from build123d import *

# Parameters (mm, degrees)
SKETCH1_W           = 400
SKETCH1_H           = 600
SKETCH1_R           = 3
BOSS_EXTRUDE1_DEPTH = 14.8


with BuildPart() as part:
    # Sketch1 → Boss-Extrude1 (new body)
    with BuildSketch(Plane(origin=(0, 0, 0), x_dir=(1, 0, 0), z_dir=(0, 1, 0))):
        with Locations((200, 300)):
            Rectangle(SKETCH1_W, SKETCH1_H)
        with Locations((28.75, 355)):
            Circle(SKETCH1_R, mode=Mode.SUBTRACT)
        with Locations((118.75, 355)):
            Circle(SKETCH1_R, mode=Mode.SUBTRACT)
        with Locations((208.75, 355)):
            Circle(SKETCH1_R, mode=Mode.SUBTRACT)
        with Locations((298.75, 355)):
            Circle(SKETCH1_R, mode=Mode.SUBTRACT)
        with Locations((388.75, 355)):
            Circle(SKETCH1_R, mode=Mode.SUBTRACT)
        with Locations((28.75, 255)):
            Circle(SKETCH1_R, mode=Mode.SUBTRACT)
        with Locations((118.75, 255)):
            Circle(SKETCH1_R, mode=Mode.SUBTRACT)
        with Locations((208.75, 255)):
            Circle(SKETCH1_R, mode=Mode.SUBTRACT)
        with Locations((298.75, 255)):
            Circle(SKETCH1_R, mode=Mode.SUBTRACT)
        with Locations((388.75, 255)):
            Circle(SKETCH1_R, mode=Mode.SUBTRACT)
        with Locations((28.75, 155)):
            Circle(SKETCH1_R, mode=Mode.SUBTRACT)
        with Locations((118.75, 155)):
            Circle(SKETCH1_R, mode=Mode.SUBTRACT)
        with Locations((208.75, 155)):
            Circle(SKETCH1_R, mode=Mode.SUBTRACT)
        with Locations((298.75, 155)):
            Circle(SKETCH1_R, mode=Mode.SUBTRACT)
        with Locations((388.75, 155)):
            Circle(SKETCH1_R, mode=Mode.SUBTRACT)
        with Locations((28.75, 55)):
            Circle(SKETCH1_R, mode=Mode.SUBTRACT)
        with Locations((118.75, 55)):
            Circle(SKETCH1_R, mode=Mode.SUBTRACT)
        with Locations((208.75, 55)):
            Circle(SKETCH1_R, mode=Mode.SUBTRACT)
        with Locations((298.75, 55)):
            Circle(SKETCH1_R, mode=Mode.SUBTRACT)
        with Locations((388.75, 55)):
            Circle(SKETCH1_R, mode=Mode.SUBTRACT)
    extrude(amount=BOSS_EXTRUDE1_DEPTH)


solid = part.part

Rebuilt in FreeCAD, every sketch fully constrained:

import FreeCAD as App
import Part
import Sketcher
from FreeCAD import Vector

doc = App.newDocument("Part")
body = doc.addObject("PartDesign::Body", "Body")

sketch1 = body.newObject("Sketcher::SketchObject", "Sketch")
sketch1.AttachmentSupport = (doc.getObject("XZ_Plane"), [""])
sketch1.MapMode = "FlatFace"
sketch1.addGeometry([
    Part.LineSegment(Vector(0, -600, 0), Vector(0, 0, 0)),
    Part.LineSegment(Vector(0, 0, 0), Vector(400, 0, 0)),
    Part.LineSegment(Vector(400, 0, 0), Vector(400, -600, 0)),
    Part.LineSegment(Vector(400, -600, 0), Vector(0, -600, 0)),
    Part.Circle(Vector(28.75, -55, 0), Vector(0, 0, 1), 3),
    Part.Circle(Vector(118.75, -55, 0), Vector(0, 0, 1), 3),
    Part.Circle(Vector(28.75, -155, 0), Vector(0, 0, 1), 3),
    Part.Circle(Vector(118.75, -155, 0), Vector(0, 0, 1), 3),
    Part.Circle(Vector(208.75, -55, 0), Vector(0, 0, 1), 3),
    Part.Circle(Vector(298.75, -55, 0), Vector(0, 0, 1), 3),
    Part.Circle(Vector(388.75, -55, 0), Vector(0, 0, 1), 3),
    Part.Circle(Vector(208.75, -155, 0), Vector(0, 0, 1), 3),
    Part.Circle(Vector(298.75, -155, 0), Vector(0, 0, 1), 3),
    Part.Circle(Vector(388.75, -155, 0), Vector(0, 0, 1), 3),
    Part.Circle(Vector(28.75, -255, 0), Vector(0, 0, 1), 3),
    Part.Circle(Vector(118.75, -255, 0), Vector(0, 0, 1), 3),
    Part.Circle(Vector(28.75, -355, 0), Vector(0, 0, 1), 3),
    Part.Circle(Vector(118.75, -355, 0), Vector(0, 0, 1), 3),
    Part.Circle(Vector(208.75, -255, 0), Vector(0, 0, 1), 3),
    Part.Circle(Vector(298.75, -255, 0), Vector(0, 0, 1), 3),
    Part.Circle(Vector(388.75, -255, 0), Vector(0, 0, 1), 3),
    Part.Circle(Vector(208.75, -355, 0), Vector(0, 0, 1), 3),
    Part.Circle(Vector(298.75, -355, 0), Vector(0, 0, 1), 3),
    Part.Circle(Vector(388.75, -355, 0), Vector(0, 0, 1), 3),
], False)
sketch1.addConstraint([
    Sketcher.Constraint("Coincident", 0, 2, 1, 1),
    Sketcher.Constraint("Coincident", 1, 2, 2, 1),
    Sketcher.Constraint("Coincident", 2, 2, 3, 1),
    Sketcher.Constraint("Coincident", 3, 2, 0, 1),
    Sketcher.Constraint("Vertical", 0),
    Sketcher.Constraint("Horizontal", 1),
    Sketcher.Constraint("Vertical", 2),
    Sketcher.Constraint("Horizontal", 3),
    Sketcher.Constraint("Coincident", 0, 2, -1, 1),
    Sketcher.Constraint("Equal", 4, 5),
    Sketcher.Constraint("Equal", 5, 6),
    Sketcher.Constraint("Equal", 6, 7),
    Sketcher.Constraint("Equal", 7, 8),
    Sketcher.Constraint("Equal", 8, 9),
    Sketcher.Constraint("Equal", 9, 10),
    Sketcher.Constraint("Equal", 10, 11),
    Sketcher.Constraint("Equal", 11, 12),
    Sketcher.Constraint("Equal", 12, 13),
    Sketcher.Constraint("Equal", 13, 14),
    Sketcher.Constraint("Equal", 14, 15),
    Sketcher.Constraint("Equal", 15, 16),
    Sketcher.Constraint("Equal", 16, 17),
    Sketcher.Constraint("Equal", 17, 18),
    Sketcher.Constraint("Equal", 18, 19),
    Sketcher.Constraint("Equal", 19, 20),
    Sketcher.Constraint("Equal", 20, 21),
    Sketcher.Constraint("Equal", 21, 22),
    Sketcher.Constraint("Equal", 22, 23),
    Sketcher.Constraint("Horizontal", 4, 3, 5, 3),
    Sketcher.Constraint("Horizontal", 6, 3, 7, 3),
    Sketcher.Constraint("Horizontal", 5, 3, 8, 3),
    Sketcher.Constraint("Horizontal", 8, 3, 9, 3),
    Sketcher.Constraint("Horizontal", 9, 3, 10, 3),
    Sketcher.Constraint("Horizontal", 7, 3, 11, 3),
    Sketcher.Constraint("Horizontal", 11, 3, 12, 3),
    Sketcher.Constraint("Horizontal", 12, 3, 13, 3),
    Sketcher.Constraint("Horizontal", 14, 3, 15, 3),
    Sketcher.Constraint("Horizontal", 16, 3, 17, 3),
    Sketcher.Constraint("Horizontal", 15, 3, 18, 3),
    Sketcher.Constraint("Horizontal", 18, 3, 19, 3),
    Sketcher.Constraint("Horizontal", 19, 3, 20, 3),
    Sketcher.Constraint("Horizontal", 17, 3, 21, 3),
    Sketcher.Constraint("Horizontal", 21, 3, 22, 3),
    Sketcher.Constraint("Horizontal", 22, 3, 23, 3),
    Sketcher.Constraint("Vertical", 4, 3, 6, 3),
    Sketcher.Constraint("Vertical", 5, 3, 7, 3),
    Sketcher.Constraint("Vertical", 8, 3, 11, 3),
    Sketcher.Constraint("Vertical", 9, 3, 12, 3),
    Sketcher.Constraint("Vertical", 10, 3, 13, 3),
    Sketcher.Constraint("Vertical", 6, 3, 14, 3),
    Sketcher.Constraint("Vertical", 7, 3, 15, 3),
    Sketcher.Constraint("Vertical", 14, 3, 16, 3),
    Sketcher.Constraint("Vertical", 15, 3, 17, 3),
    Sketcher.Constraint("Vertical", 11, 3, 18, 3),
    Sketcher.Constraint("Vertical", 12, 3, 19, 3),
    Sketcher.Constraint("Vertical", 13, 3, 20, 3),
    Sketcher.Constraint("Vertical", 18, 3, 21, 3),
    Sketcher.Constraint("Vertical", 19, 3, 22, 3),
    Sketcher.Constraint("Vertical", 20, 3, 23, 3),
    Sketcher.Constraint("Diameter", 4, 6.0),
    Sketcher.Constraint("DistanceX", 1, 1, 1, 2, 400.0),
    Sketcher.Constraint("DistanceY", 0, 1, 0, 2, 600.0),
    Sketcher.Constraint("DistanceY", 4, 3, -1, 1, 55.0),
    Sketcher.Constraint("DistanceY", 6, 3, -1, 1, 155.0),
    Sketcher.Constraint("DistanceY", 14, 3, -1, 1, 255.0),
    Sketcher.Constraint("DistanceY", 16, 3, -1, 1, 355.0),
    Sketcher.Constraint("DistanceX", 4, 3, 5, 3, 90.0),
    Sketcher.Constraint("DistanceX", 5, 3, 8, 3, 90.0),
    Sketcher.Constraint("DistanceX", 8, 3, 9, 3, 90.0),
    Sketcher.Constraint("DistanceX", 9, 3, 10, 3, 90.0),
    Sketcher.Constraint("DistanceX", -1, 1, 4, 3, 28.75),
])
pad1 = body.newObject("PartDesign::Pad", "Pad")
pad1.Profile = sketch1
pad1.Length = 14.8
pad1.Reversed = True

doc.recompute()
